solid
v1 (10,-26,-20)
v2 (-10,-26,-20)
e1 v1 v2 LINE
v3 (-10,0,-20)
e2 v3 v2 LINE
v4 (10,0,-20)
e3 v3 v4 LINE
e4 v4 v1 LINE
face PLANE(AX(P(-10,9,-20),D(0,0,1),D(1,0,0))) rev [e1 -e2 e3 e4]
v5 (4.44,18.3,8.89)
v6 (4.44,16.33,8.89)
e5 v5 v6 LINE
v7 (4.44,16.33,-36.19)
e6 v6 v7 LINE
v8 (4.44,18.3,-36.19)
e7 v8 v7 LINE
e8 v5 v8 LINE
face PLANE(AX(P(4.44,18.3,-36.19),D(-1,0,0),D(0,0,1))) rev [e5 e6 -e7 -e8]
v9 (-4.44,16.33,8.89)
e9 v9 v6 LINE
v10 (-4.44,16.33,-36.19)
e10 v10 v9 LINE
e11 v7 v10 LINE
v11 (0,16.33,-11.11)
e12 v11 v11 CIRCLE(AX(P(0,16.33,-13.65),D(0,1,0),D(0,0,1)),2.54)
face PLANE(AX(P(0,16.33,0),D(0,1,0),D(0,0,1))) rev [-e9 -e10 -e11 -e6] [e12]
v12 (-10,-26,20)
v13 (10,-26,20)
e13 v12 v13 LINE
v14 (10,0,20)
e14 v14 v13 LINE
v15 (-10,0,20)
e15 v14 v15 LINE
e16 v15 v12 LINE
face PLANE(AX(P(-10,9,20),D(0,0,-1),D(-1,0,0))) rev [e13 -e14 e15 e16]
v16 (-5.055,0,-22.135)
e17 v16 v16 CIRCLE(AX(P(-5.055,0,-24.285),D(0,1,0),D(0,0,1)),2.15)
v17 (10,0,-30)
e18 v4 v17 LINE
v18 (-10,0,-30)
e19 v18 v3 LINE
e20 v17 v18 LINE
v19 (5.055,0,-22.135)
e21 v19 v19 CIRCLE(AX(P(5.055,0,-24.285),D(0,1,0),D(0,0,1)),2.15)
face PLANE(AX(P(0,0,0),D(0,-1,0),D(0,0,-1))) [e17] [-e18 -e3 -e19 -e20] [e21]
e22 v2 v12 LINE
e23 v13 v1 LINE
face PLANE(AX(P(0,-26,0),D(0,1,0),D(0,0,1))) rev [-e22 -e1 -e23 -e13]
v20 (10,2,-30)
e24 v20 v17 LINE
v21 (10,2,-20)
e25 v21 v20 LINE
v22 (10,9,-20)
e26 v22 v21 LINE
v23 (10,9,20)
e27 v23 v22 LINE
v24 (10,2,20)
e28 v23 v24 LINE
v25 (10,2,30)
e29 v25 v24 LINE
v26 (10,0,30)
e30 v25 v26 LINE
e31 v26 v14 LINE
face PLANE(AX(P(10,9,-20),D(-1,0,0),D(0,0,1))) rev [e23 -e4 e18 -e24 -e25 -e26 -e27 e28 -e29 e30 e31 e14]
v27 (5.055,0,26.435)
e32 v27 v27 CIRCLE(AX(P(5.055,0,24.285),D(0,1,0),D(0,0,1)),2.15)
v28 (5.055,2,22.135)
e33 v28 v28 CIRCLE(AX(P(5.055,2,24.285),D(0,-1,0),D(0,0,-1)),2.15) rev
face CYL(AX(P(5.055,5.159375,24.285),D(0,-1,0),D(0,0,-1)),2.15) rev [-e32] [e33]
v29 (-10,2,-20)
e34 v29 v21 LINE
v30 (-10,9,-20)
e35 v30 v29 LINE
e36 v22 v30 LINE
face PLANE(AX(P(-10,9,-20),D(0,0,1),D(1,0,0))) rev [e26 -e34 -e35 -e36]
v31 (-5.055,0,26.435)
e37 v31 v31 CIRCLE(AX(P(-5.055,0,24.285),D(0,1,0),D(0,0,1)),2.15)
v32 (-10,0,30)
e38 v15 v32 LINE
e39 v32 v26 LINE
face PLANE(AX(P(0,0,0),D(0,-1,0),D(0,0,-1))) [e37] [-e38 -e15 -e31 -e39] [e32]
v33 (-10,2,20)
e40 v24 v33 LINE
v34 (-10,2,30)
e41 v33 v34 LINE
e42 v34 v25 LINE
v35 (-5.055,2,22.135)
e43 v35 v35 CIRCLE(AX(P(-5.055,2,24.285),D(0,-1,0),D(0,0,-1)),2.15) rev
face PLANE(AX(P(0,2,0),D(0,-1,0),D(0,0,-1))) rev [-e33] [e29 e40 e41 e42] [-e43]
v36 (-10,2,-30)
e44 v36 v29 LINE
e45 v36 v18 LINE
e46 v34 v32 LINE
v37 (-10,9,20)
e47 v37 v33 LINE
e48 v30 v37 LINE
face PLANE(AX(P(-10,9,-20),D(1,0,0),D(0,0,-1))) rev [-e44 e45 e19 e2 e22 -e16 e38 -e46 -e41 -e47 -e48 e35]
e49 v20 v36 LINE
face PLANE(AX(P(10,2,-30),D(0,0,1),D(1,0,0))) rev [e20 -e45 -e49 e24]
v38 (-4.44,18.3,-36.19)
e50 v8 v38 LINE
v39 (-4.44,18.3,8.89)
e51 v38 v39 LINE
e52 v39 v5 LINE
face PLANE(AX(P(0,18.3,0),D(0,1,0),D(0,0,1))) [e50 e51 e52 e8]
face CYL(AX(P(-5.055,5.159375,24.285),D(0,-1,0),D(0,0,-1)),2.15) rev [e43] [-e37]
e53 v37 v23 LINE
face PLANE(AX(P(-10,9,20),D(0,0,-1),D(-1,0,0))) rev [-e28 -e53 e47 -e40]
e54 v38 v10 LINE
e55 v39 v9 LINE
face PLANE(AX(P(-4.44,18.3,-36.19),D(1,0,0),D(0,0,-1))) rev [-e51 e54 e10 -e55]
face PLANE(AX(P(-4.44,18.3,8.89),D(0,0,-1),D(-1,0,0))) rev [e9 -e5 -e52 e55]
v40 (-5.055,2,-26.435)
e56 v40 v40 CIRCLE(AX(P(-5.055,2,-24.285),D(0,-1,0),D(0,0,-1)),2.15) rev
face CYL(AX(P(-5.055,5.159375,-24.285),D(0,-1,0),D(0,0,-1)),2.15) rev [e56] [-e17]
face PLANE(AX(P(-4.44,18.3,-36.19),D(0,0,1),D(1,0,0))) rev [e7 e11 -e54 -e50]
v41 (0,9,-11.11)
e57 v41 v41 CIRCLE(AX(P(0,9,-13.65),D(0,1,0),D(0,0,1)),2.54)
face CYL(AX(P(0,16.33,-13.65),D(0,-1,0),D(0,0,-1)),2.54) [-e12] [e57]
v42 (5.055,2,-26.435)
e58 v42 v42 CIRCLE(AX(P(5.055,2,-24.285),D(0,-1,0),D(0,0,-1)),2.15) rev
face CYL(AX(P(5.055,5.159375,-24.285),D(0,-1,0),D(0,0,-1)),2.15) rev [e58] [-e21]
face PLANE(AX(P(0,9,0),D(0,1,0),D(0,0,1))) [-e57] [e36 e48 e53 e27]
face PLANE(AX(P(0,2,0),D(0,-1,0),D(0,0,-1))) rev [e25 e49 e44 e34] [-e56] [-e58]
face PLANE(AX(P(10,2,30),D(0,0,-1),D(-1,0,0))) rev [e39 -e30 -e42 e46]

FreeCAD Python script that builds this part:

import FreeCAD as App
import Part
import Sketcher

V = App.Vector


def add_polygon(sketch, points):
    """Adds a closed chain of lines whose ends are joined by coincident constraints."""
    first, n = sketch.GeometryCount, len(points)
    for a, b in zip(points, points[1:] + points[:1]):
        sketch.addGeometry(Part.LineSegment(App.Vector(*a, 0), App.Vector(*b, 0)), False)
    for i in range(n):
        sketch.addConstraint(Sketcher.Constraint("Coincident", first + i, 2, first + (i + 1) % n, 1))

doc = App.newDocument("Part")
body = doc.addObject("PartDesign::Body", "Body")

# Sketch on XZ plane
sketch1 = body.newObject("Sketcher::SketchObject", "Sketch")
sketch1.AttachmentSupport = (doc.getObject("XZ_Plane"), [""])
sketch1.MapMode = "FlatFace"
add_polygon(sketch1, [(-10, -20), (-10, 20), (10, 20), (10, -20)])  # lines 0-3
sketch1.addConstraint(Sketcher.Constraint("Vertical", 0))
sketch1.addConstraint(Sketcher.Constraint("Horizontal", 1))
sketch1.addConstraint(Sketcher.Constraint("Vertical", 2))
sketch1.addConstraint(Sketcher.Constraint("Horizontal", 3))
sketch1.addConstraint(Sketcher.Constraint("Symmetric", 0, 2, 2, 2, -1, 1))
sketch1.addConstraint(Sketcher.Constraint("DistanceX", 1, 1, 1, 2, 20.0))
sketch1.addConstraint(Sketcher.Constraint("DistanceY", 0, 1, 0, 2, 40.0))
pad1 = body.newObject("PartDesign::Pad", "Pad")
pad1.Profile = sketch1
pad1.Type = "TwoLengths"
pad1.Length = 9
pad1.Length2 = 26
pad1.Reversed = True

# Sketch on XZ plane
sketch2 = body.newObject("Sketcher::SketchObject", "Sketch001")
sketch2.AttachmentSupport = (doc.getObject("XZ_Plane"), [""])
sketch2.MapMode = "FlatFace"
sketch2.AttachmentOffset = App.Placement(V(0, 0, -9), App.Rotation())
sketch2.addGeometry(Part.Circle(V(0, -13.65, 0), V(0, 0, 1), 2.54), False)
sketch2.addConstraint(Sketcher.Constraint("PointOnObject", 0, 3, -2))
sketch2.addConstraint(Sketcher.Constraint("Diameter", 0, 5.08))
sketch2.addConstraint(Sketcher.Constraint("DistanceY", 0, 3, -1, 1, 13.65))
pad2 = body.newObject("PartDesign::Pad", "Pad001")
pad2.Profile = sketch2
pad2.Length = 7.33
pad2.Reversed = True

# Sketch on XZ plane
sketch3 = body.newObject("Sketcher::SketchObject", "Sketch002")
sketch3.AttachmentSupport = (doc.getObject("XZ_Plane"), [""])
sketch3.MapMode = "FlatFace"
sketch3.AttachmentOffset = App.Placement(V(0, 0, -16.33), App.Rotation())
add_polygon(sketch3, [(-4.44, -36.19), (-4.44, 8.89), (4.44, 8.89), (4.44, -36.19)])  # lines 0-3
sketch3.addConstraint(Sketcher.Constraint("Vertical", 0))
sketch3.addConstraint(Sketcher.Constraint("Horizontal", 1))
sketch3.addConstraint(Sketcher.Constraint("Vertical", 2))
sketch3.addConstraint(Sketcher.Constraint("Horizontal", 3))
sketch3.addConstraint(Sketcher.Constraint("DistanceX", 1, 1, 1, 2, 8.88))
sketch3.addConstraint(Sketcher.Constraint("DistanceY", 0, 1, 0, 2, 45.08))
sketch3.addConstraint(Sketcher.Constraint("DistanceX", 0, 2, -1, 1, 4.44))
sketch3.addConstraint(Sketcher.Constraint("DistanceY", -1, 1, 0, 2, 8.89))
pad3 = body.newObject("PartDesign::Pad", "Pad002")
pad3.Profile = sketch3
pad3.Length = 1.97
pad3.Reversed = True

# Sketch on XZ plane
sketch4 = body.newObject("Sketcher::SketchObject", "Sketch003")
sketch4.AttachmentSupport = (doc.getObject("XZ_Plane"), [""])
sketch4.MapMode = "FlatFace"
add_polygon(sketch4, [(-10, 20), (-10, 30), (10, 30), (10, 20)])  # lines 0-3
add_polygon(sketch4, [(-10, -30), (-10, -20), (10, -20), (10, -30)])  # lines 4-7
sketch4.addConstraint(Sketcher.Constraint("Vertical", 0))
sketch4.addConstraint(Sketcher.Constraint("Horizontal", 1))
sketch4.addConstraint(Sketcher.Constraint("Vertical", 2))
sketch4.addConstraint(Sketcher.Constraint("Horizontal", 3))
sketch4.addConstraint(Sketcher.Constraint("Vertical", 4))
sketch4.addConstraint(Sketcher.Constraint("Horizontal", 5))
sketch4.addConstraint(Sketcher.Constraint("Vertical", 6))
sketch4.addConstraint(Sketcher.Constraint("Horizontal", 7))
sketch4.addConstraint(Sketcher.Constraint("Symmetric", 2, 2, 4, 2, -1, 1))
sketch4.addConstraint(Sketcher.Constraint("Symmetric", 0, 2, 6, 2, -1, 1))
sketch4.addConstraint(Sketcher.Constraint("Vertical", 3, 2, 4, 2))
sketch4.addConstraint(Sketcher.Constraint("DistanceX", 1, 1, 1, 2, 20.0))
sketch4.addConstraint(Sketcher.Constraint("DistanceY", 0, 1, 0, 2, 10.0))
sketch4.addConstraint(Sketcher.Constraint("DistanceY", -1, 1, 0, 2, 30.0))
pad4 = body.newObject("PartDesign::Pad", "Pad003")
pad4.Profile = sketch4
pad4.Length = 2
pad4.Reversed = True

# Sketch on XZ plane
sketch5 = body.newObject("Sketcher::SketchObject", "Sketch004")
sketch5.AttachmentSupport = (doc.getObject("XZ_Plane"), [""])
sketch5.MapMode = "FlatFace"
sketch5.addGeometry(Part.Circle(V(5.055, 24.285, 0), V(0, 0, 1), 2.15), False)
sketch5.addGeometry(Part.Circle(V(-5.055, 24.285, 0), V(0, 0, 1), 2.15), False)
sketch5.addGeometry(Part.Circle(V(5.055, -24.285, 0), V(0, 0, 1), 2.15), False)
sketch5.addGeometry(Part.Circle(V(-5.055, -24.285, 0), V(0, 0, 1), 2.15), False)
sketch5.addConstraint(Sketcher.Constraint("Equal", 0, 1))
sketch5.addConstraint(Sketcher.Constraint("Equal", 1, 2))
sketch5.addConstraint(Sketcher.Constraint("Equal", 2, 3))
sketch5.addConstraint(Sketcher.Constraint("Symmetric", 1, 3, 2, 3, -1, 1))
sketch5.addConstraint(Sketcher.Constraint("Symmetric", 0, 3, 3, 3, -1, 1))
sketch5.addConstraint(Sketcher.Constraint("Symmetric", 0, 3, 1, 3, -2))
sketch5.addConstraint(Sketcher.Constraint("Diameter", 0, 4.3))
sketch5.addConstraint(Sketcher.Constraint("DistanceX", 1, 3, 0, 3, 10.11))
sketch5.addConstraint(Sketcher.Constraint("DistanceY", 2, 3, 0, 3, 48.57))
pocket1 = body.newObject("PartDesign::Pocket", "Pocket")
pocket1.Profile = sketch5
pocket1.Length = 5.159375

doc.recompute()
